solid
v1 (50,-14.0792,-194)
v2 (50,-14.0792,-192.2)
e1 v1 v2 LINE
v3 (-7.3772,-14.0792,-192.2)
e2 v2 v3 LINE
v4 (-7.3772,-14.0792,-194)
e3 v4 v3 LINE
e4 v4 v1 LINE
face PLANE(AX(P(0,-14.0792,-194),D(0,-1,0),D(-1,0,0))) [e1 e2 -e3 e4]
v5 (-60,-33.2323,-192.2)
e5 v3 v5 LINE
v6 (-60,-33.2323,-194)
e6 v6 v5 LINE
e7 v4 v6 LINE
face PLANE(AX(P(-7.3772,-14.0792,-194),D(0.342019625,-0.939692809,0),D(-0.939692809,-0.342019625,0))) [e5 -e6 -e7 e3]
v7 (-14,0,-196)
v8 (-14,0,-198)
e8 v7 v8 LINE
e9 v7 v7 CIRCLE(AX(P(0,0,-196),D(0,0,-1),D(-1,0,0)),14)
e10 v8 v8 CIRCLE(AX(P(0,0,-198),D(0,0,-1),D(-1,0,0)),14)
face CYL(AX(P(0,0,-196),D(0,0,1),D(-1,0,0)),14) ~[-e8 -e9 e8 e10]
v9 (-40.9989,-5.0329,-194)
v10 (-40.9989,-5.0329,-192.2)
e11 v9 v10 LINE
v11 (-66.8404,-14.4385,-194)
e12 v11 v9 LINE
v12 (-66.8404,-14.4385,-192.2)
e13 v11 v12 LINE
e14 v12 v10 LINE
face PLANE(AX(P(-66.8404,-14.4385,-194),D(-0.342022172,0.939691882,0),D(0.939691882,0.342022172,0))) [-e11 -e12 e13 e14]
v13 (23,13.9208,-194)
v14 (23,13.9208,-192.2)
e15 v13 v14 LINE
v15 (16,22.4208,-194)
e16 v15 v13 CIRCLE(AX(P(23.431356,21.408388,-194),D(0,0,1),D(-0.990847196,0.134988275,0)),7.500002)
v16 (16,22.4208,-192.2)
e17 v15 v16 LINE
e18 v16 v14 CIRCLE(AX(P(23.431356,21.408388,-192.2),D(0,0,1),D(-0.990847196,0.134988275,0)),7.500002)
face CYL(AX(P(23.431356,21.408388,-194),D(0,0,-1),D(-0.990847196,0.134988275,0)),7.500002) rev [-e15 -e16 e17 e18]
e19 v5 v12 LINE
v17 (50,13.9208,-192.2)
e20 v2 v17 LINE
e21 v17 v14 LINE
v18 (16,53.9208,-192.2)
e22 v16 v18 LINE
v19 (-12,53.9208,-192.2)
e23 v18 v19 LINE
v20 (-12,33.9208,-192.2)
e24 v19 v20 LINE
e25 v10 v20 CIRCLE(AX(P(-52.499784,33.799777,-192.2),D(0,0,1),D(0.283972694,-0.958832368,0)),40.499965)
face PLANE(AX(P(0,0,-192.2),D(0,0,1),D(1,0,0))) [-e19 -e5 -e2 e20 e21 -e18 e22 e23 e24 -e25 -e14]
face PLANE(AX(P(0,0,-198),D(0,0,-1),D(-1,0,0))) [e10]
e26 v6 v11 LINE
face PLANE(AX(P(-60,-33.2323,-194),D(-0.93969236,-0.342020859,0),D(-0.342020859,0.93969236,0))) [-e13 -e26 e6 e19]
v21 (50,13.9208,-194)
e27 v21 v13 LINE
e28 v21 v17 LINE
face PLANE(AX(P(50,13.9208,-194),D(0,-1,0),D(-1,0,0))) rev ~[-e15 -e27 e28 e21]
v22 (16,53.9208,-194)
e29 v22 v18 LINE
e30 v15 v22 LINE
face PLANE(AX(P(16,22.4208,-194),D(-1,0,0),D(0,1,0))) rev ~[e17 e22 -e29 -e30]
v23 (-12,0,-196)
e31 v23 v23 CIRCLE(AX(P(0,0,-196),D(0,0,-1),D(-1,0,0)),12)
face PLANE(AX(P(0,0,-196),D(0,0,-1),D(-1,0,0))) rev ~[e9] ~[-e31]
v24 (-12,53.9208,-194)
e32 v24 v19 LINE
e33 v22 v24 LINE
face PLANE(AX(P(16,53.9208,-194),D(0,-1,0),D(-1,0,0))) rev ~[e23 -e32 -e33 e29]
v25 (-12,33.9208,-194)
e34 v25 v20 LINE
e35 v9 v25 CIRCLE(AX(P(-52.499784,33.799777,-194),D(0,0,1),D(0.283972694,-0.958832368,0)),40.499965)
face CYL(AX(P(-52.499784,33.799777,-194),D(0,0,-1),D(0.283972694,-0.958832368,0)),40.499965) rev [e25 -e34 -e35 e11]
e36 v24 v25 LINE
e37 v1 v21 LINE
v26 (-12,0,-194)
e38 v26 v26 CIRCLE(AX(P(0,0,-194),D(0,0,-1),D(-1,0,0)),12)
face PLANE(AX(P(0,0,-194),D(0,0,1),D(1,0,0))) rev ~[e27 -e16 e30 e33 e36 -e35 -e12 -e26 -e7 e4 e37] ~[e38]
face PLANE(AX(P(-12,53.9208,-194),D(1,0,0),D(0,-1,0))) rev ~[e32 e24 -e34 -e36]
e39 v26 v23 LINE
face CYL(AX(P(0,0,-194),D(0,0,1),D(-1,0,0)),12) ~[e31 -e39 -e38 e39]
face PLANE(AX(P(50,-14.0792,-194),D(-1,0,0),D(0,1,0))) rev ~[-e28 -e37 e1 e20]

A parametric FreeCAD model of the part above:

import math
import FreeCAD as App
import Part
import Sketcher
Q = App.Units.Quantity

doc = App.newDocument("Part")
body = doc.addObject("PartDesign::Body", "Body")

sketch1 = doc.addObject("Sketcher::SketchObject", "Sketch")
body.addObject(sketch1)
sketch1.AttachmentSupport = (doc.XY_Plane, [""])
sketch1.MapMode = "FlatFace"
sketch1.AttachmentOffset = App.Placement(App.Vector(0, 0, -194), App.Rotation())
sketch1.addGeometry(Part.Circle(App.Vector(0, 0, 0), App.Vector(0, 0, 1), 12), False)
sketch1.addConstraint([
    Sketcher.Constraint("Coincident", 0, 3, -1, 1),
    Sketcher.Constraint("Diameter", 0, Q("24 mm")),
])
pad1 = doc.addObject("PartDesign::Pad", "Pad")
body.addObject(pad1)
pad1.Profile = sketch1
pad1.Length = 2
pad1.Reversed = True

sketch2 = doc.addObject("Sketcher::SketchObject", "Sketch001")
body.addObject(sketch2)
sketch2.AttachmentSupport = (doc.XY_Plane, [""])
sketch2.MapMode = "FlatFace"
sketch2.AttachmentOffset = App.Placement(App.Vector(0, 0, -196), App.Rotation())
sketch2.addGeometry(Part.Circle(App.Vector(0, 0, 0), App.Vector(0, 0, 1), 14), False)
sketch2.addConstraint([
    Sketcher.Constraint("Coincident", 0, 3, -1, 1),
    Sketcher.Constraint("Diameter", 0, Q("28 mm")),
])
pad2 = doc.addObject("PartDesign::Pad", "Pad001")
body.addObject(pad2)
pad2.Profile = sketch2
pad2.Length = 2
pad2.Reversed = True

sketch3 = doc.addObject("Sketcher::SketchObject", "Sketch002")
body.addObject(sketch3)
sketch3.AttachmentSupport = (doc.XY_Plane, [""])
sketch3.MapMode = "FlatFace"
sketch3.AttachmentOffset = App.Placement(App.Vector(0, 0, -194), App.Rotation())
sketch3.addGeometry([
    Part.LineSegment(App.Vector(-7, -14, 0), App.Vector(50, -14, 0)),
    Part.LineSegment(App.Vector(50, -14, 0), App.Vector(50, 14, 0)),
    Part.LineSegment(App.Vector(50, 14, 0), App.Vector(23, 14, 0)),
    Part.ArcOfCircle(Part.Circle(App.Vector(23, 21, 0), App.Vector(0, 0, 1), 8), math.radians(172), math.radians(267)),
    Part.LineSegment(App.Vector(16, 22, 0), App.Vector(16, 54, 0)),
    Part.LineSegment(App.Vector(16, 54, 0), App.Vector(-12, 54, 0)),
    Part.LineSegment(App.Vector(-12, 54, 0), App.Vector(-12, 34, 0)),
    Part.ArcOfCircle(Part.Circle(App.Vector(-52, 34, 0), App.Vector(0, 0, 1), 40), math.radians(-74), math.radians(0)),
    Part.LineSegment(App.Vector(-41, -5, 0), App.Vector(-67, -14, 0)),
    Part.LineSegment(App.Vector(-67, -14, 0), App.Vector(-60, -33, 0)),
    Part.LineSegment(App.Vector(-60, -33, 0), App.Vector(-7, -14, 0)),
], False)
sketch3.addConstraint([
    Sketcher.Constraint("Coincident", 0, 2, 1, 1),
    Sketcher.Constraint("Coincident", 1, 2, 2, 1),
    Sketcher.Constraint("Coincident", 2, 2, 3, 2),
    Sketcher.Constraint("Coincident", 3, 1, 4, 1),
    Sketcher.Constraint("Coincident", 4, 2, 5, 1),
    Sketcher.Constraint("Coincident", 5, 2, 6, 1),
    Sketcher.Constraint("Coincident", 6, 2, 7, 2),
    Sketcher.Constraint("Coincident", 7, 1, 8, 1),
    Sketcher.Constraint("Coincident", 8, 2, 9, 1),
    Sketcher.Constraint("Coincident", 9, 2, 10, 1),
    Sketcher.Constraint("Coincident", 10, 2, 0, 1),
    Sketcher.Constraint("Horizontal", 0),
    Sketcher.Constraint("Vertical", 1),
    Sketcher.Constraint("Horizontal", 2),
    Sketcher.Constraint("Vertical", 4),
    Sketcher.Constraint("Horizontal", 5),
    Sketcher.Constraint("Vertical", 6),
    Sketcher.Constraint("Perpendicular", 8, 9),
    Sketcher.Constraint("Perpendicular", 9, 10),
    Sketcher.Constraint("Equal", 5, 1),
    Sketcher.Constraint("Radius", 3, Q("7.5 mm")),
    Sketcher.Constraint("Radius", 7, Q("40.5 mm")),
    Sketcher.Constraint("DistanceX", 2, 2, 2, 1, Q("27 mm")),
    Sketcher.Constraint("DistanceX", 5, 2, 5, 1, Q("28 mm")),
    Sketcher.Constraint("DistanceY", 6, 2, 6, 1, Q("20 mm")),
    Sketcher.Constraint("Angle", 8, Q("-159.9999 deg")),
    Sketcher.Constraint("Distance", 9, Q("20 mm")),
    Sketcher.Constraint("Distance", 10, Q("56 mm")),
    Sketcher.Constraint("DistanceY", 4, 1, 4, 2, Q("31.5 mm")),
    Sketcher.Constraint("DistanceX", -1, 1, 0, 2, Q("50 mm")),
    Sketcher.Constraint("DistanceX", 3, 1, 1, 2, Q("34 mm")),
    Sketcher.Constraint("DistanceY", 2, 2, 4, 2, Q("40 mm")),
    Sketcher.Constraint("Distance", 8, Q("27.5 mm")),
    Sketcher.Constraint("DistanceX", 9, 2, -1, 1, Q("60 mm")),
    Sketcher.Constraint("DistanceY", 7, 1, -1, 1, Q("5.033 mm")),
])
pad3 = doc.addObject("PartDesign::Pad", "Pad002")
body.addObject(pad3)
pad3.Profile = sketch3
pad3.Length = 1.8

doc.recompute()
